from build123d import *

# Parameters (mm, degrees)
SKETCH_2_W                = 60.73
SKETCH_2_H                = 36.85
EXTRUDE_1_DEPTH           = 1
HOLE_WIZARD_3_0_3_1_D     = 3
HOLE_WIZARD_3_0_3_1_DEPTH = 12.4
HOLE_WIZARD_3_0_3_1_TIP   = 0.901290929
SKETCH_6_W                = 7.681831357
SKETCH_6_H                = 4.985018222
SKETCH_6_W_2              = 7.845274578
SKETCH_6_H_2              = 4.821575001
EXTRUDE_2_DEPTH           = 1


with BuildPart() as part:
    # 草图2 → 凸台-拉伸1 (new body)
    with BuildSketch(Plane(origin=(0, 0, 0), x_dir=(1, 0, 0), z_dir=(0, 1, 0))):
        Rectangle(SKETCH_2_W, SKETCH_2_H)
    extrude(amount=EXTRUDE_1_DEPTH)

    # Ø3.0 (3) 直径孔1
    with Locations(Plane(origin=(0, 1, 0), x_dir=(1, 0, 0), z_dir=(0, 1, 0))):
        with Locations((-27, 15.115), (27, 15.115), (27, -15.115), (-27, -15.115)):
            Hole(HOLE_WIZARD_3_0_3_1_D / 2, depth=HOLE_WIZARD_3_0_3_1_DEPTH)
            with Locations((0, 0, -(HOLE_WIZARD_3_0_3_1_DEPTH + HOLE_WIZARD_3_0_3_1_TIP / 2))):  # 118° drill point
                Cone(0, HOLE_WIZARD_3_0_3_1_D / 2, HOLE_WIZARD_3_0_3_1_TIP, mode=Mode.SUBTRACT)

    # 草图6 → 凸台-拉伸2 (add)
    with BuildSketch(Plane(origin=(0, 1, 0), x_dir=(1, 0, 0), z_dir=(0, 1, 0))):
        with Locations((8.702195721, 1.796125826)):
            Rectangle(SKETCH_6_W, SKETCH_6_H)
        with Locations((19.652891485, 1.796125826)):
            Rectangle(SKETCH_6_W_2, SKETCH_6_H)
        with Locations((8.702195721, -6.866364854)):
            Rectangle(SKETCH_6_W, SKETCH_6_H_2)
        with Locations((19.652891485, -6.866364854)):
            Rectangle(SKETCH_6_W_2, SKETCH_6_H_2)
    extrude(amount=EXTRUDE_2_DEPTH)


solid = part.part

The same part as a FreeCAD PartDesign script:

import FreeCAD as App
import Part
import Sketcher
from FreeCAD import Vector


def add_polygon(sketch, points):
    """Adds a closed chain of lines whose ends are joined by coincident constraints."""
    first, n = sketch.GeometryCount, len(points)
    for a, b in zip(points, points[1:] + points[:1]):
        sketch.addGeometry(Part.LineSegment(App.Vector(*a, 0), App.Vector(*b, 0)), False)
    for i in range(n):
        sketch.addConstraint(Sketcher.Constraint("Coincident", first + i, 2, first + (i + 1) % n, 1))

doc = App.newDocument("Part")
params = doc.addObject("Spreadsheet::Sheet", "Params")
for row, (alias, value) in enumerate([
    ("sketch1_width", "60.73 mm"),
    ("sketch1_height", "36.85 mm"),
    ("pad1_length", "1 mm"),
    ("sketch2_diameter", "3 mm"),
    ("hole_diameter", "3 mm"),
    ("hole_depth", "12.4 mm"),
    ("pad2_length", "1 mm"),
], start=1):
    params.set(f"A{row}", alias)
    params.set(f"B{row}", "=" + value)
    params.setAlias(f"B{row}", alias)

body = doc.addObject("PartDesign::Body", "Body")

# Sketch on XZ plane
sketch1 = doc.addObject("Sketcher::SketchObject", "Sketch")
body.addObject(sketch1)
sketch1.AttachmentSupport = (doc.XZ_Plane, [""])
sketch1.MapMode = "FlatFace"
add_polygon(sketch1, [(-30, -18), (-30, 18), (30, 18), (30, -18)])  # lines 0-3
sketch1.addConstraint([
    Sketcher.Constraint("Vertical", 0),
    Sketcher.Constraint("Horizontal", 1),
    Sketcher.Constraint("Vertical", 2),
    Sketcher.Constraint("Horizontal", 3),
    Sketcher.Constraint("Symmetric", 0, 2, 2, 2, -1, 1),
    Sketcher.Constraint("DistanceX", 1, 1, 1, 2, 60.73),
    Sketcher.Constraint("DistanceY", 0, 1, 0, 2, 36.85),
])
sketch1.setExpression("Constraints[9]", "Params.sketch1_width")
sketch1.setExpression("Constraints[10]", "Params.sketch1_height")
pad1 = doc.addObject("PartDesign::Pad", "Pad")
body.addObject(pad1)
pad1.Profile = sketch1
pad1.setExpression("Length", "Params.pad1_length")
pad1.Reversed = True

# Sketch on XZ plane
sketch2 = doc.addObject("Sketcher::SketchObject", "Sketch001")
body.addObject(sketch2)
sketch2.AttachmentSupport = (doc.XZ_Plane, [""])
sketch2.MapMode = "FlatFace"
sketch2.AttachmentOffset = App.Placement(Vector(0, 0, -1), App.Rotation())
sketch2.addGeometry([
    Part.Circle(Vector(-27, -15.1, 0), Vector(0, 0, 1), 1.5),
    Part.Circle(Vector(27, -15.1, 0), Vector(0, 0, 1), 1.5),
    Part.Circle(Vector(27, 15.1, 0), Vector(0, 0, 1), 1.5),
    Part.Circle(Vector(-27, 15.1, 0), Vector(0, 0, 1), 1.5),
], False)
sketch2.addConstraint([
    Sketcher.Constraint("Equal", 0, 1),
    Sketcher.Constraint("Equal", 1, 2),
    Sketcher.Constraint("Equal", 2, 3),
    Sketcher.Constraint("Symmetric", 0, 3, 2, 3, -1, 1),
    Sketcher.Constraint("Symmetric", 1, 3, 3, 3, -1, 1),
    Sketcher.Constraint("Symmetric", 0, 3, 1, 3, -2),
    Sketcher.Constraint("Diameter", 0, 3.0),
    Sketcher.Constraint("DistanceX", 0, 3, -1, 1, 27.0),
    Sketcher.Constraint("DistanceY", 1, 3, 2, 3, 30.23),
])
sketch2.setExpression("Constraints[6]", "Params.sketch2_diameter")
doc.recompute()
hole = doc.addObject("PartDesign::Hole", "Hole")
body.addObject(hole)
hole.Profile = sketch2
hole.ThreadType = "None"
hole.setExpression("Diameter", "Params.hole_diameter")
hole.DepthType = "Dimension"
hole.setExpression("Depth", "Params.hole_depth")
hole.DrillPoint = "Angled"
hole.DrillPointAngle = 118
hole.Reversed = True

# Sketch on XZ plane
sketch3 = doc.addObject("Sketcher::SketchObject", "Sketch002")
body.addObject(sketch3)
sketch3.AttachmentSupport = (doc.XZ_Plane, [""])
sketch3.MapMode = "FlatFace"
sketch3.AttachmentOffset = App.Placement(Vector(0, 0, -1), App.Rotation())
add_polygon(sketch3, [(4.9, -4.3), (4.9, 0.7), (12.5, 0.7), (12.5, -4.3)])  # lines 0-3
add_polygon(sketch3, [(15.7, -4.3), (15.7, 0.7), (23.6, 0.7), (23.6, -4.3)])  # lines 4-7
add_polygon(sketch3, [(4.9, 4.5), (4.9, 9.3), (12.5, 9.3), (12.5, 4.5)])  # lines 8-11
add_polygon(sketch3, [(15.7, 4.5), (15.7, 9.3), (23.6, 9.3), (23.6, 4.5)])  # lines 12-15
sketch3.addConstraint([
    Sketcher.Constraint("Vertical", 0),
    Sketcher.Constraint("Horizontal", 1),
    Sketcher.Constraint("Vertical", 2),
    Sketcher.Constraint("Horizontal", 3),
    Sketcher.Constraint("Vertical", 4),
    Sketcher.Constraint("Horizontal", 5),
    Sketcher.Constraint("Vertical", 6),
    Sketcher.Constraint("Horizontal", 7),
    Sketcher.Constraint("Vertical", 8),
    Sketcher.Constraint("Horizontal", 9),
    Sketcher.Constraint("Vertical", 10),
    Sketcher.Constraint("Horizontal", 11),
    Sketcher.Constraint("Vertical", 12),
    Sketcher.Constraint("Horizontal", 13),
    Sketcher.Constraint("Vertical", 14),
    Sketcher.Constraint("Horizontal", 15),
    Sketcher.Constraint("Horizontal", 1, 2, 4, 2),
    Sketcher.Constraint("Horizontal", 3, 2, 6, 2),
    Sketcher.Constraint("Horizontal", 9, 2, 12, 2),
    Sketcher.Constraint("Horizontal", 11, 2, 14, 2),
    Sketcher.Constraint("Vertical", 3, 2, 8, 2),
    Sketcher.Constraint("Vertical", 2, 2, 9, 2),
    Sketcher.Constraint("Vertical", 7, 2, 12, 2),
    Sketcher.Constraint("Vertical", 6, 2, 13, 2),
    Sketcher.Constraint("DistanceX", 1, 1, 1, 2, 7.681831),
    Sketcher.Constraint("DistanceY", 0, 1, 0, 2, 4.985018),
    Sketcher.Constraint("DistanceX", 5, 1, 5, 2, 7.845275),
    Sketcher.Constraint("DistanceY", 8, 1, 8, 2, 4.821575),
    Sketcher.Constraint("DistanceX", -1, 1, 0, 2, 4.86128),
    Sketcher.Constraint("DistanceX", -1, 1, 5, 2, 23.575529),
    Sketcher.Constraint("DistanceY", 0, 2, 8, 2, 8.580769),
    Sketcher.Constraint("DistanceY", -1, 1, 0, 2, 0.696383),
])
pad2 = doc.addObject("PartDesign::Pad", "Pad001")
body.addObject(pad2)
pad2.Profile = sketch3
pad2.setExpression("Length", "Params.pad2_length")
pad2.Reversed = True

doc.recompute()
